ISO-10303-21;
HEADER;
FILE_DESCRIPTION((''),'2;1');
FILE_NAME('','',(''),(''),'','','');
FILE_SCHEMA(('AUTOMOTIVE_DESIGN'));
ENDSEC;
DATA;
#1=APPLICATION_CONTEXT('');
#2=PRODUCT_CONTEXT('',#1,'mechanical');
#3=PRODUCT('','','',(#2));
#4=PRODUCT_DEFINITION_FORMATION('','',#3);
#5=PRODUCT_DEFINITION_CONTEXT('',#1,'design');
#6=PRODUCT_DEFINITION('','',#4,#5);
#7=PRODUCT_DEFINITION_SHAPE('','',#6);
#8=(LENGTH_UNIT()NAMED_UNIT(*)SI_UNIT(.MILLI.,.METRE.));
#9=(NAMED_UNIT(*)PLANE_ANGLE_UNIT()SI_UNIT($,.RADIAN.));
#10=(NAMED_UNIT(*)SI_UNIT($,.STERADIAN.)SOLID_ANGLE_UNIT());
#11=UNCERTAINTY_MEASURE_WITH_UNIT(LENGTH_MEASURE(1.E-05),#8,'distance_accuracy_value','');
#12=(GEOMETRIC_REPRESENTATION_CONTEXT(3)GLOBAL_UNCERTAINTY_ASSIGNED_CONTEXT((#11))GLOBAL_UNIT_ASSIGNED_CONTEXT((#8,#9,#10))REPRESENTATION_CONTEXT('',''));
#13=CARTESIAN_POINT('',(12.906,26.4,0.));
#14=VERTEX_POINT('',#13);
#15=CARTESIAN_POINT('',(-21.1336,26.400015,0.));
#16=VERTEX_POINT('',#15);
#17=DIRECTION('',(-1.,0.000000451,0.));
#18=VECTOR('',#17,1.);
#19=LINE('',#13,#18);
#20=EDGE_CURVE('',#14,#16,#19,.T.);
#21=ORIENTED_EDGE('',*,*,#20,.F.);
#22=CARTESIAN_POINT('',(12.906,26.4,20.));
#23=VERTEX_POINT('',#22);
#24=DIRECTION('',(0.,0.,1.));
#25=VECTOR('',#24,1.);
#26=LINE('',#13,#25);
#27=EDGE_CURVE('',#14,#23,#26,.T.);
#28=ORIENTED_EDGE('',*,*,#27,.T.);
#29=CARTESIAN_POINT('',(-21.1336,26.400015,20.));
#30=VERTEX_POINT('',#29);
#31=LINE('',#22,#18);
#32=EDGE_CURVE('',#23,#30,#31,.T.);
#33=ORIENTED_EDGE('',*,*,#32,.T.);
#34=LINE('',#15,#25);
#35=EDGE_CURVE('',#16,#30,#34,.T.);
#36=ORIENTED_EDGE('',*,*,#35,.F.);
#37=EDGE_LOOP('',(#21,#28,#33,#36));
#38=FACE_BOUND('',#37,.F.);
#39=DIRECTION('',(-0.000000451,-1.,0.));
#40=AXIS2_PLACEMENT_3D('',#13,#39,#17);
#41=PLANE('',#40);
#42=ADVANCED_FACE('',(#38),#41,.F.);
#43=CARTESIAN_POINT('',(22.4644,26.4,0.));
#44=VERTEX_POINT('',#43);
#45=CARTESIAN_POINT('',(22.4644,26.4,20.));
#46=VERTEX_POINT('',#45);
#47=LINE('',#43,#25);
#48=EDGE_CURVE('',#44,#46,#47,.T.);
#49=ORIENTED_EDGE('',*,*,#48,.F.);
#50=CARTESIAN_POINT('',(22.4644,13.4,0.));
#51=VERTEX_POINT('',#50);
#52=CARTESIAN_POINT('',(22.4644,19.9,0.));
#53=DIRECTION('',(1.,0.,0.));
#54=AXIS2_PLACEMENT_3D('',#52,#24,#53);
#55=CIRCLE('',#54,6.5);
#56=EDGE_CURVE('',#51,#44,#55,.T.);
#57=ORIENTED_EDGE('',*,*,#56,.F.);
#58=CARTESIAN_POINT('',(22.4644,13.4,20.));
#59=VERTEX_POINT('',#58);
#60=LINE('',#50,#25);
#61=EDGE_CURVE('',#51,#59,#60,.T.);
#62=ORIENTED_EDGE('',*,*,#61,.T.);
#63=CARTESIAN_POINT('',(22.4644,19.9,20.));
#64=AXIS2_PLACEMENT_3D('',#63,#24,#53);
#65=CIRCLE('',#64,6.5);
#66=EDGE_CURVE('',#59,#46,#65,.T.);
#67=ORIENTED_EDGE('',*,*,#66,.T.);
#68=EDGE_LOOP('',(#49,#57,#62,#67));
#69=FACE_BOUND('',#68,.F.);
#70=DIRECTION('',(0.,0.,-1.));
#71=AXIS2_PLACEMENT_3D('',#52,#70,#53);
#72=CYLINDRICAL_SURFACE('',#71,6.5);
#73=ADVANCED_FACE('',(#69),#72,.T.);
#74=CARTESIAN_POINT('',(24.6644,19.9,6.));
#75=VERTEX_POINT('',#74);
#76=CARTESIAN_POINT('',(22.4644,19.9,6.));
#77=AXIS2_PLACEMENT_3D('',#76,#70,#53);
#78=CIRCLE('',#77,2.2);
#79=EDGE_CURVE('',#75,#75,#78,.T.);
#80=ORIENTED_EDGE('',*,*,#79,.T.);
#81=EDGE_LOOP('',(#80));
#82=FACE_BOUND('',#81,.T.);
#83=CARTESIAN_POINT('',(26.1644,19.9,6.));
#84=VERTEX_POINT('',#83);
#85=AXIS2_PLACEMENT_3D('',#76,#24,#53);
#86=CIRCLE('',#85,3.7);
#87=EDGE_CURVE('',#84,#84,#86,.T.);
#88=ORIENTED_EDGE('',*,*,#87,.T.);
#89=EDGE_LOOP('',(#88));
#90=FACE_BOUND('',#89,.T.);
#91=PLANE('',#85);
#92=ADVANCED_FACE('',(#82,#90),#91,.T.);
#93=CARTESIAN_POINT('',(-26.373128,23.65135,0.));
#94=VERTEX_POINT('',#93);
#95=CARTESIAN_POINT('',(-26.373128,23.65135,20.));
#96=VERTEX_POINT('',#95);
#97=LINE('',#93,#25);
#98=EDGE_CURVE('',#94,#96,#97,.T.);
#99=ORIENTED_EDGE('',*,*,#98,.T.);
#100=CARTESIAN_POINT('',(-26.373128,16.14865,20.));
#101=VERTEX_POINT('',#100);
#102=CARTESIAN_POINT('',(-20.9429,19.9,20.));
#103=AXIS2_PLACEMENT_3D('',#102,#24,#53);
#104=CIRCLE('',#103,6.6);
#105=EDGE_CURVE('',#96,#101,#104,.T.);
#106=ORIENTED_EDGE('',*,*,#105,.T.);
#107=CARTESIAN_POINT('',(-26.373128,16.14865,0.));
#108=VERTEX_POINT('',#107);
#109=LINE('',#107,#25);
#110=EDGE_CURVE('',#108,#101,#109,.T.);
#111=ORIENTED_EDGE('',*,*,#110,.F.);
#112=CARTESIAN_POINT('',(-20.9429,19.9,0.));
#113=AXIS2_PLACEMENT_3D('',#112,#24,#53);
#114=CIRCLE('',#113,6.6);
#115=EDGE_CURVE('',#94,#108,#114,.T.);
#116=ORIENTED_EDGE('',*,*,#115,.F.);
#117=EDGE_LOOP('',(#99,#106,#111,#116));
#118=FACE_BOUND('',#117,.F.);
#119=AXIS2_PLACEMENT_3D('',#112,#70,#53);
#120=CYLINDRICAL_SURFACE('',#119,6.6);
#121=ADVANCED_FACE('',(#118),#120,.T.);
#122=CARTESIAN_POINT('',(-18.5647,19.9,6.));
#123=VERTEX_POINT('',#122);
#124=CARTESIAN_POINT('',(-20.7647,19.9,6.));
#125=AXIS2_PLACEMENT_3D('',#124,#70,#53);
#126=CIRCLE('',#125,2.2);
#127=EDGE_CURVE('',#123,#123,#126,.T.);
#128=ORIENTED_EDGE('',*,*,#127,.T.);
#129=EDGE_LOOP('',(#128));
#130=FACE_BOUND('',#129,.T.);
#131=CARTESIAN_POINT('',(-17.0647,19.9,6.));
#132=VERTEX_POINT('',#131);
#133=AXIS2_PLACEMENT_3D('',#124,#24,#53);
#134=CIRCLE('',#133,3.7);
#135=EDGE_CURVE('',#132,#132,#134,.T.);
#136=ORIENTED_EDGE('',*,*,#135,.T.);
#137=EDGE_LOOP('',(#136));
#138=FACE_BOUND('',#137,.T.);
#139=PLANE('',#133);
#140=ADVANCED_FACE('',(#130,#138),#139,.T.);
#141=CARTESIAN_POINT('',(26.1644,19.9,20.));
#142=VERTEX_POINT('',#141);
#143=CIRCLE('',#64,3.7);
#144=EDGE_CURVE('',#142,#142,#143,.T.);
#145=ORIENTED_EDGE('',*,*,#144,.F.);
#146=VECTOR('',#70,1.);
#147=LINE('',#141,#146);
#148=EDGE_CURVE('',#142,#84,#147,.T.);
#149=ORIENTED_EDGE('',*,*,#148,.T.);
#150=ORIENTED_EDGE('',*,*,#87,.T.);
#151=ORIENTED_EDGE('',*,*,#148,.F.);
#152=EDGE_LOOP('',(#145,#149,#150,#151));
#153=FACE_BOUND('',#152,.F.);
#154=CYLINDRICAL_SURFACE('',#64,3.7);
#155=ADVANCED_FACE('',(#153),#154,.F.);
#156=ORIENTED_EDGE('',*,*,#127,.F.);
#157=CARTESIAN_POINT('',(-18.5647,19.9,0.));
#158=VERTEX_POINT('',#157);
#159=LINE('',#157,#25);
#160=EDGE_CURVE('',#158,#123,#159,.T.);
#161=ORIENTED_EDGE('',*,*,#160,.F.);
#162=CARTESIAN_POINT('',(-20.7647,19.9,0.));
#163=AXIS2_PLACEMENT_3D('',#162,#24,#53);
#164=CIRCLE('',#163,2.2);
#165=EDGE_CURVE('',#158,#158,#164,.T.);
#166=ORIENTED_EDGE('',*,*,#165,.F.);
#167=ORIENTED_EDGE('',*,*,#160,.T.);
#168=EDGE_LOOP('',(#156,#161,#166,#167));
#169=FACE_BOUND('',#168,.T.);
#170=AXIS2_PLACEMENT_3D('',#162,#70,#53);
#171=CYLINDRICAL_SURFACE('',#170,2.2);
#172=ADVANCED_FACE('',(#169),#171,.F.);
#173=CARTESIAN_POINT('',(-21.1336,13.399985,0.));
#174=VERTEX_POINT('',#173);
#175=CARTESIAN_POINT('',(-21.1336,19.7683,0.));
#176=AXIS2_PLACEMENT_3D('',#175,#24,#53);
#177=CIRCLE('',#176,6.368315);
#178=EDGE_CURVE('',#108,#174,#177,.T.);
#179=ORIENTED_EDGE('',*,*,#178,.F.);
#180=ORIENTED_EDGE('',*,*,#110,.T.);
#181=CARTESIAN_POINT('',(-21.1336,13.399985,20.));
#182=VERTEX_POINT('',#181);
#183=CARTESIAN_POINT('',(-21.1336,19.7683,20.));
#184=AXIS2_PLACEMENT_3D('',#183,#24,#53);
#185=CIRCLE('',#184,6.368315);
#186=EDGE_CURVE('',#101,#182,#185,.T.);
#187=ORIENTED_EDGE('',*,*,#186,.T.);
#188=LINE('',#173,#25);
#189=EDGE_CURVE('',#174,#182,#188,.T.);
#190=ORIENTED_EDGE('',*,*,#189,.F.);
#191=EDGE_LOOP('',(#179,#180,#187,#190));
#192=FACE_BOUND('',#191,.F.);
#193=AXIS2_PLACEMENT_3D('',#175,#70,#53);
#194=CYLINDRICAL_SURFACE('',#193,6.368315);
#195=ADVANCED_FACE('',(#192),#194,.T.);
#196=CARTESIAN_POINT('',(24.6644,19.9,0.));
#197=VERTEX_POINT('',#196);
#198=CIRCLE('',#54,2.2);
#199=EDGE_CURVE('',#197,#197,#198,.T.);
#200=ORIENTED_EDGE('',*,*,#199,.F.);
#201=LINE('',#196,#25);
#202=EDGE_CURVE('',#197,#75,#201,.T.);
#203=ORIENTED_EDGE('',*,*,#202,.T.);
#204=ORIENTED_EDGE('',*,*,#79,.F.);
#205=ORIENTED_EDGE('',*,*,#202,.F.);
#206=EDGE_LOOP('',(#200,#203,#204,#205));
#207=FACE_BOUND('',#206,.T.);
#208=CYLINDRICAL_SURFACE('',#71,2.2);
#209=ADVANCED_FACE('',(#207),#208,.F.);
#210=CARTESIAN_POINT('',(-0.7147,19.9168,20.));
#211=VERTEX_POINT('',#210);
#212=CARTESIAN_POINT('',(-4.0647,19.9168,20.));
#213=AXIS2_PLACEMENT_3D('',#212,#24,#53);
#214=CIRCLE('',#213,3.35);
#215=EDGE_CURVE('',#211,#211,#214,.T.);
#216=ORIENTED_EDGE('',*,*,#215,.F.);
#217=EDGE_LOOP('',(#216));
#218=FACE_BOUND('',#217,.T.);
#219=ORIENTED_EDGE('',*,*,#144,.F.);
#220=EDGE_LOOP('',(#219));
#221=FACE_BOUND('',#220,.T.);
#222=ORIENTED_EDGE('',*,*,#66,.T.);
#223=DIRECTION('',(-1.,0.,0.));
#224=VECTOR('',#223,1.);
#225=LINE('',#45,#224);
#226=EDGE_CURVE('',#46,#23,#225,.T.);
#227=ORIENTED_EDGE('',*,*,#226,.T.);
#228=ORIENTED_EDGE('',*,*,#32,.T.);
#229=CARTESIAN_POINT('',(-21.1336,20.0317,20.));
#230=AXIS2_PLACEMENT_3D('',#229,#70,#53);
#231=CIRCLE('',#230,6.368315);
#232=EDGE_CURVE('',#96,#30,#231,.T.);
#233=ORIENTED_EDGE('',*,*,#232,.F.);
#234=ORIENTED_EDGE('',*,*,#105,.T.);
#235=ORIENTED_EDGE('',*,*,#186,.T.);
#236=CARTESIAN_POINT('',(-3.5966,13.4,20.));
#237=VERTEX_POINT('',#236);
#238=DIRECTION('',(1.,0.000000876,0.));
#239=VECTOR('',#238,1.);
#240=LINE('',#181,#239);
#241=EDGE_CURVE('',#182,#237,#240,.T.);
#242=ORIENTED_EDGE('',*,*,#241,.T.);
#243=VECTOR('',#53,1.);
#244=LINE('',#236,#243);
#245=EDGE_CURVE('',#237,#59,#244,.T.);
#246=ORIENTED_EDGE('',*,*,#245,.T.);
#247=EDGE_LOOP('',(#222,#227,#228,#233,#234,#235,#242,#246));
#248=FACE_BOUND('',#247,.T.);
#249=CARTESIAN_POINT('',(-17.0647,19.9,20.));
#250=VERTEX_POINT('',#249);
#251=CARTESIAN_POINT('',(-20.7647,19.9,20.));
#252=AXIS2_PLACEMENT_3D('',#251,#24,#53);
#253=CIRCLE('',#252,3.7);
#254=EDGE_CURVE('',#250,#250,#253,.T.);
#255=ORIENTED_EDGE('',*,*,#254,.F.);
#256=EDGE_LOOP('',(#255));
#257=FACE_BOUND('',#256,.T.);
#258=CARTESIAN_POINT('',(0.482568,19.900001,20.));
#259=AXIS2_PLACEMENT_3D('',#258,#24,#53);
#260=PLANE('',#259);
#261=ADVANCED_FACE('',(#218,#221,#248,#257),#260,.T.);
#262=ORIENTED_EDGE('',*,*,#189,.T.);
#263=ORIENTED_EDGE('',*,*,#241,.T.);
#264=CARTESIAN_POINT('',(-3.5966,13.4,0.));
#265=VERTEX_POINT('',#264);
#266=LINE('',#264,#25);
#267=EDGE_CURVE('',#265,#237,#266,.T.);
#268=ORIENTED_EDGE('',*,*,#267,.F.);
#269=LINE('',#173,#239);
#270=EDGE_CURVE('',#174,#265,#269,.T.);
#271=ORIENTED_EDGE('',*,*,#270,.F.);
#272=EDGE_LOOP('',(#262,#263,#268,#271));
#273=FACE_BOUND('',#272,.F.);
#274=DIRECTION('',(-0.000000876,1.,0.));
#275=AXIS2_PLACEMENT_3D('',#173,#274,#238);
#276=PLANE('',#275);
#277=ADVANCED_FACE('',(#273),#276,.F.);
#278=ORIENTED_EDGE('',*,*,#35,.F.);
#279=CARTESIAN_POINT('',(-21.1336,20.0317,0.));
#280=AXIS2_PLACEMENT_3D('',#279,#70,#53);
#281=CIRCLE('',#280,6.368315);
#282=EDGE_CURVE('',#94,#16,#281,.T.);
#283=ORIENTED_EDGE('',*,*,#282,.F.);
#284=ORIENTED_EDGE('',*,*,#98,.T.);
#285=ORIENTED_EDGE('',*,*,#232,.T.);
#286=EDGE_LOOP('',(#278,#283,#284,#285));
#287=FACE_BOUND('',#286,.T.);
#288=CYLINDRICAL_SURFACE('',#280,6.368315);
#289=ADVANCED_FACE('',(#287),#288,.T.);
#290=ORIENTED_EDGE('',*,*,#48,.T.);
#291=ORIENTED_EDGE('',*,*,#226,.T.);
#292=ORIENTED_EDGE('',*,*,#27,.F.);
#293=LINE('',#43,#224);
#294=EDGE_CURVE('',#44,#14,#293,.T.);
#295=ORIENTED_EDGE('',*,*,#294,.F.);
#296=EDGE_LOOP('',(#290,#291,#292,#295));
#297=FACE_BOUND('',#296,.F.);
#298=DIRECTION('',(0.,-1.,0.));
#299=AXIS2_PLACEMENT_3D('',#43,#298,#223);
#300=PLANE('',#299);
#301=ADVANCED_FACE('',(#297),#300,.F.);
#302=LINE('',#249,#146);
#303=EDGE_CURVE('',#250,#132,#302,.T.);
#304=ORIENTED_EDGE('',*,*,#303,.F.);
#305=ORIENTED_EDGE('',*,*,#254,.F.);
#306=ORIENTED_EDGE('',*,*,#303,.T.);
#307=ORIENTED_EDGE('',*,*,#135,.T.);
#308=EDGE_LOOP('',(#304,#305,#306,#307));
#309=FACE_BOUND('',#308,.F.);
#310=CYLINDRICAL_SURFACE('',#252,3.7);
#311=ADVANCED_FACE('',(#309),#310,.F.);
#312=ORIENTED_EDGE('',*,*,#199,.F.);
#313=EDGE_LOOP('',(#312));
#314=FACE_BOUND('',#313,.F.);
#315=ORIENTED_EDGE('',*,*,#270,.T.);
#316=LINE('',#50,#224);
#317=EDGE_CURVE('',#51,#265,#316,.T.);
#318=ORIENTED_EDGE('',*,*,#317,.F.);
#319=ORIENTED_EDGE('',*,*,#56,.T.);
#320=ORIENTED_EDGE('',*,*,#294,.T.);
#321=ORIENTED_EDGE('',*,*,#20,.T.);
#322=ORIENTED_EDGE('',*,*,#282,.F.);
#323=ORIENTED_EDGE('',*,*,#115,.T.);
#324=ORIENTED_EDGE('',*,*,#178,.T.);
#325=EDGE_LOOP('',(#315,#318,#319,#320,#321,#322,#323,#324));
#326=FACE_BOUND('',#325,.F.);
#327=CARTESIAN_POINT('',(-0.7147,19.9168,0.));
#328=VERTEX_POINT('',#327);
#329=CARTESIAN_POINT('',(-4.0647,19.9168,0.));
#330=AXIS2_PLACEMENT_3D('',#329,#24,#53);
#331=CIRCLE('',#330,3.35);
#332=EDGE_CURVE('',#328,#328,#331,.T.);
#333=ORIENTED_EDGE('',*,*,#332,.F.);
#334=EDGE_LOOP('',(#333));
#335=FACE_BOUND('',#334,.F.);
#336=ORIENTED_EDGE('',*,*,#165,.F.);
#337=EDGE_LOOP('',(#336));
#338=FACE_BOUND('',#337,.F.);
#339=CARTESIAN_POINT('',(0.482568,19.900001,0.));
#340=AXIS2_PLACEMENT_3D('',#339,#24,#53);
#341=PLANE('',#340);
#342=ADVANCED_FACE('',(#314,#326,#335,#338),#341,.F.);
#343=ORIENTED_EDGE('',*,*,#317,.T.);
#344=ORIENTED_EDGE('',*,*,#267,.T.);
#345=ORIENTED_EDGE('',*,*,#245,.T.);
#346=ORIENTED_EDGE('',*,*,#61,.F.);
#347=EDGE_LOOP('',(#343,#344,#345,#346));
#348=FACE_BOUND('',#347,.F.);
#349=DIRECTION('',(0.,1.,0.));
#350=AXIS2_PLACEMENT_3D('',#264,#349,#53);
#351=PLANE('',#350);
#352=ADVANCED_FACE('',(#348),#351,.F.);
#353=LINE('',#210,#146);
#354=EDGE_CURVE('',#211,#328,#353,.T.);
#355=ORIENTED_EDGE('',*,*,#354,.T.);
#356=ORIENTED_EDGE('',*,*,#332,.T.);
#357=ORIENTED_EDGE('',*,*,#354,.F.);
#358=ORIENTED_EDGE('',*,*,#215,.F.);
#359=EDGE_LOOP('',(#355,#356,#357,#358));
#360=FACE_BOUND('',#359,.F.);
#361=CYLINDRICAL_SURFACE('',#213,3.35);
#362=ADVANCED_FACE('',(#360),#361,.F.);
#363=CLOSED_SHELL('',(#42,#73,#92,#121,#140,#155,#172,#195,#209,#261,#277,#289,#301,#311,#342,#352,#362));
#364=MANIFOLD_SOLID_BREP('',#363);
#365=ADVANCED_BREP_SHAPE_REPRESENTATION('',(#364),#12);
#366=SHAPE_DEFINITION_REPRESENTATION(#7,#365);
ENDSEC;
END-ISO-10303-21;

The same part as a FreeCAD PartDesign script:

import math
import FreeCAD as App
import Part
import Sketcher

doc = App.newDocument("Part")
body = doc.addObject("PartDesign::Body", "Body")

# Sketch on XY plane
sketch1 = doc.addObject("Sketcher::SketchObject", "Sketch")
body.addObject(sketch1)
sketch1.AttachmentSupport = (doc.XY_Plane, [""])
sketch1.MapMode = "FlatFace"
sketch1.addGeometry(Part.ArcOfCircle(Part.Circle(App.Vector(-21.1, 20, 0), App.Vector(0, 0, 1), 6.4), math.radians(90), math.radians(145)), False)
sketch1.addGeometry(Part.ArcOfCircle(Part.Circle(App.Vector(-20.9, 19.9, 0), App.Vector(0, 0, 1), 6.6), math.radians(145), math.radians(215)), False)
sketch1.addGeometry(Part.ArcOfCircle(Part.Circle(App.Vector(-21.1, 19.8, 0), App.Vector(0, 0, 1), 6.4), math.radians(-145), math.radians(-90)), False)
sketch1.addGeometry(Part.LineSegment(App.Vector(-21.1, 13.4, 0), App.Vector(22.5, 13.4, 0)), False)
sketch1.addGeometry(Part.ArcOfCircle(Part.Circle(App.Vector(22.5, 19.9, 0), App.Vector(0, 0, 1), 6.5), math.radians(-90), math.radians(90)), False)
sketch1.addGeometry(Part.LineSegment(App.Vector(22.5, 26.4, 0), App.Vector(-21.1, 26.4, 0)), False)
sketch1.addGeometry(Part.Circle(App.Vector(-20.8, 19.9, 0), App.Vector(0, 0, 1), 2.2), False)
sketch1.addGeometry(Part.Circle(App.Vector(22.5, 19.9, 0), App.Vector(0, 0, 1), 2.2), False)
sketch1.addConstraint(Sketcher.Constraint("Tangent", 0, 2, 1, 1))
sketch1.addConstraint(Sketcher.Constraint("Tangent", 1, 2, 2, 1))
sketch1.addConstraint(Sketcher.Constraint("Tangent", 2, 2, 3, 1))
sketch1.addConstraint(Sketcher.Constraint("Tangent", 3, 2, 4, 1))
sketch1.addConstraint(Sketcher.Constraint("Tangent", 4, 2, 5, 1))
sketch1.addConstraint(Sketcher.Constraint("Tangent", 5, 2, 0, 1))
sketch1.addConstraint(Sketcher.Constraint("Horizontal", 3))
sketch1.addConstraint(Sketcher.Constraint("Horizontal", 5))
sketch1.addConstraint(Sketcher.Constraint("Coincident", 7, 3, 4, 3))
sketch1.addConstraint(Sketcher.Constraint("Equal", 0, 2))
sketch1.addConstraint(Sketcher.Constraint("Equal", 6, 7))
sketch1.addConstraint(Sketcher.Constraint("Horizontal", 1, 3, 4, 3))
sketch1.addConstraint(Sketcher.Constraint("Horizontal", 4, 3, 6, 3))
sketch1.addConstraint(Sketcher.Constraint("Diameter", 6, 4.4))
sketch1.addConstraint(Sketcher.Constraint("Radius", 1, 6.6))
sketch1.addConstraint(Sketcher.Constraint("Radius", 4, 6.5))
sketch1.addConstraint(Sketcher.Constraint("DistanceY", -1, 1, 1, 3, 19.9))
sketch1.addConstraint(Sketcher.Constraint("Radius", 0, 6.3683))
sketch1.addConstraint(Sketcher.Constraint("DistanceX", 3, 1, 3, 2, 43.598))
sketch1.addConstraint(Sketcher.Constraint("DistanceX", 1, 3, -1, 1, 20.943))
sketch1.addConstraint(Sketcher.Constraint("DistanceX", 2, 3, 6, 3, 0.369))
pad1 = doc.addObject("PartDesign::Pad", "Pad")
body.addObject(pad1)
pad1.Profile = sketch1
pad1.Length = 20

# Sketch on XY plane
sketch2 = doc.addObject("Sketcher::SketchObject", "Sketch001")
body.addObject(sketch2)
sketch2.AttachmentSupport = (doc.XY_Plane, [""])
sketch2.MapMode = "FlatFace"
sketch2.AttachmentOffset = App.Placement(App.Vector(0, 0, 20), App.Rotation())
sketch2.addGeometry(Part.Circle(App.Vector(-4.1, 19.9, 0), App.Vector(0, 0, 1), 3.4), False)
sketch2.addConstraint(Sketcher.Constraint("Diameter", 0, 6.7))
sketch2.addConstraint(Sketcher.Constraint("DistanceX", 0, 3, -1, 1, 4.0647))
sketch2.addConstraint(Sketcher.Constraint("DistanceY", -1, 1, 0, 3, 19.9168))
pocket1 = doc.addObject("PartDesign::Pocket", "Pocket")
body.addObject(pocket1)
pocket1.Profile = sketch2
pocket1.Length = 67.0154

# Sketch on XY plane
sketch3 = doc.addObject("Sketcher::SketchObject", "Sketch002")
body.addObject(sketch3)
sketch3.AttachmentSupport = (doc.XY_Plane, [""])
sketch3.MapMode = "FlatFace"
sketch3.AttachmentOffset = App.Placement(App.Vector(0, 0, 20), App.Rotation())
sketch3.addGeometry(Part.Circle(App.Vector(-20.8, 19.9, 0), App.Vector(0, 0, 1), 3.7), False)
sketch3.addGeometry(Part.Circle(App.Vector(22.5, 19.9, 0), App.Vector(0, 0, 1), 3.7), False)
sketch3.addConstraint(Sketcher.Constraint("Equal", 0, 1))
sketch3.addConstraint(Sketcher.Constraint("Horizontal", 0, 3, 1, 3))
sketch3.addConstraint(Sketcher.Constraint("Diameter", 0, 7.4))
sketch3.addConstraint(Sketcher.Constraint("DistanceY", -1, 1, 0, 3, 19.9))
sketch3.addConstraint(Sketcher.Constraint("DistanceX", 0, 3, 1, 3, 43.229))
sketch3.addConstraint(Sketcher.Constraint("DistanceX", 0, 3, -1, 1, 20.7647))
pocket2 = doc.addObject("PartDesign::Pocket", "Pocket001")
body.addObject(pocket2)
pocket2.Profile = sketch3
pocket2.Length = 14

doc.recompute()
